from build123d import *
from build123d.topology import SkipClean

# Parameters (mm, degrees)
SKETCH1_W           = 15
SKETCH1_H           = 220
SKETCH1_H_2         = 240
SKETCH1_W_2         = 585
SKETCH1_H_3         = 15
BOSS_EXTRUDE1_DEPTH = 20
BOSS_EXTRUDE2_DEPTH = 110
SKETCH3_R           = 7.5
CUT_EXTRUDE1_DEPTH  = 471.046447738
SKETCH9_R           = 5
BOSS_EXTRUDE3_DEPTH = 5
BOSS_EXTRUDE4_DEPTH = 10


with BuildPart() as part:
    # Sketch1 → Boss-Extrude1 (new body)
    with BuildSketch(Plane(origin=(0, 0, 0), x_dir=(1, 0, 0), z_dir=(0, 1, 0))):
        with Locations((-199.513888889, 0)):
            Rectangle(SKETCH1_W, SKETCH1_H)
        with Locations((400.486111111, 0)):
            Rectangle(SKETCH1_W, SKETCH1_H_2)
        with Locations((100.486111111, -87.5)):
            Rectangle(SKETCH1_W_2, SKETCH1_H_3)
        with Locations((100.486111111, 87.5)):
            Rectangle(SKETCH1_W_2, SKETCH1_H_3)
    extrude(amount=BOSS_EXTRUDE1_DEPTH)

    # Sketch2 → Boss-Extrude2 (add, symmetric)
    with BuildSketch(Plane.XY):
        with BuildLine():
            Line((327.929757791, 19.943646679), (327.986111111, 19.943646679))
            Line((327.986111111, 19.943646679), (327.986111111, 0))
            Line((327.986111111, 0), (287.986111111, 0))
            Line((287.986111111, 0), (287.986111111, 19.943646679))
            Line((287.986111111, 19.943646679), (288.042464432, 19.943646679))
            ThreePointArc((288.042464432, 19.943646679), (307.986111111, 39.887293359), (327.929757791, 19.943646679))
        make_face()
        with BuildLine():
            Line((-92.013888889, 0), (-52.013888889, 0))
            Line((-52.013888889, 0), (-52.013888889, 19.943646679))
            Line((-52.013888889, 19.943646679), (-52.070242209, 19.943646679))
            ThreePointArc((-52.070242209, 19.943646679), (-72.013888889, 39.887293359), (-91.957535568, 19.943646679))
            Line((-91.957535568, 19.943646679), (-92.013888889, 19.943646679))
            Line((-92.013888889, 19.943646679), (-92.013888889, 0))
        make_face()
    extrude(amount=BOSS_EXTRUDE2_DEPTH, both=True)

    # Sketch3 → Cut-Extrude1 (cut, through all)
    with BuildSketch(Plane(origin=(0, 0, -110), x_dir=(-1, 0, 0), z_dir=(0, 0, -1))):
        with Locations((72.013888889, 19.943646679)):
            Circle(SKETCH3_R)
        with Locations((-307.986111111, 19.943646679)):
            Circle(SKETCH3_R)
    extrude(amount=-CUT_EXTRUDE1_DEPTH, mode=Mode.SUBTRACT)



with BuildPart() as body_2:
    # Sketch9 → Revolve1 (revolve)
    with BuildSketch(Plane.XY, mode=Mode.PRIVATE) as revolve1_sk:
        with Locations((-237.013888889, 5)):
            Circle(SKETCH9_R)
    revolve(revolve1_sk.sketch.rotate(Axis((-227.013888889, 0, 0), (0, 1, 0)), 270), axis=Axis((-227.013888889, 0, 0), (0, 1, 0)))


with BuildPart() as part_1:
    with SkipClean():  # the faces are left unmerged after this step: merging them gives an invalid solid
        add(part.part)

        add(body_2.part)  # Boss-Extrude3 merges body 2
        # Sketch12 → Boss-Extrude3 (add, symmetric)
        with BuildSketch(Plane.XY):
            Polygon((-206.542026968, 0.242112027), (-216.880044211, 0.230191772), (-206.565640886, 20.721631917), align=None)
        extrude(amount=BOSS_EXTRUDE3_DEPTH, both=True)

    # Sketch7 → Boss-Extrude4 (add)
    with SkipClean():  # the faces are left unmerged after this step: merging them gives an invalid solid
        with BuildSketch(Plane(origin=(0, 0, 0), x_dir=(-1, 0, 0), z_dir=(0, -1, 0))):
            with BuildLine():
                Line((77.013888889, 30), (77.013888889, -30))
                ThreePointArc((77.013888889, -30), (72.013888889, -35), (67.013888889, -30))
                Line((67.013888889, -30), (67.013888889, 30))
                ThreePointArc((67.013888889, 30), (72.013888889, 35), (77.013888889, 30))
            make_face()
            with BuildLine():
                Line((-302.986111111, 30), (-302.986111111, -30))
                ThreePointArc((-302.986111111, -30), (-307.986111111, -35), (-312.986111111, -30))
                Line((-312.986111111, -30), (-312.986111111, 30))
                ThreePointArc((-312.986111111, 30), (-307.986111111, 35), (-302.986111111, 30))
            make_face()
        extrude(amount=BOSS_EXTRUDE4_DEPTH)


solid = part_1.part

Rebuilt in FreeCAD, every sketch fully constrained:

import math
import FreeCAD as App
import Part
import Sketcher
from FreeCAD import Vector
Q = App.Units.Quantity


def add_polygon(sketch, points):
    """Adds a closed chain of lines whose ends are joined by coincident constraints."""
    first, n = sketch.GeometryCount, len(points)
    for a, b in zip(points, points[1:] + points[:1]):
        sketch.addGeometry(Part.LineSegment(App.Vector(*a, 0), App.Vector(*b, 0)), False)
    for i in range(n):
        sketch.addConstraint(Sketcher.Constraint("Coincident", first + i, 2, first + (i + 1) % n, 1))

doc = App.newDocument("Part")
body = doc.addObject("PartDesign::Body", "Body")

# Sketch on XZ plane
sketch1 = body.newObject("Sketcher::SketchObject", "Sketch")
sketch1.AttachmentSupport = (doc.getObject("XZ_Plane"), [""])
sketch1.MapMode = "FlatFace"
add_polygon(sketch1, [(-207, -110), (-207, 110), (-192, 110), (-192, 95), (393, 95), (393, 120), (408, 120), (408, -120), (393, -120), (393, -95), (-192, -95), (-192, -110)])  # lines 0-11
add_polygon(sketch1, [(393, -80), (393, 80), (-192, 80), (-192, -80)])  # lines 12-15
sketch1.addConstraint(Sketcher.Constraint("Vertical", 0))
sketch1.addConstraint(Sketcher.Constraint("Horizontal", 1))
sketch1.addConstraint(Sketcher.Constraint("Vertical", 2))
sketch1.addConstraint(Sketcher.Constraint("Horizontal", 3))
sketch1.addConstraint(Sketcher.Constraint("Vertical", 4))
sketch1.addConstraint(Sketcher.Constraint("Horizontal", 5))
sketch1.addConstraint(Sketcher.Constraint("Vertical", 6))
sketch1.addConstraint(Sketcher.Constraint("Horizontal", 7))
sketch1.addConstraint(Sketcher.Constraint("Vertical", 8))
sketch1.addConstraint(Sketcher.Constraint("Horizontal", 9))
sketch1.addConstraint(Sketcher.Constraint("Vertical", 10))
sketch1.addConstraint(Sketcher.Constraint("Horizontal", 11))
sketch1.addConstraint(Sketcher.Constraint("Vertical", 12))
sketch1.addConstraint(Sketcher.Constraint("Horizontal", 13))
sketch1.addConstraint(Sketcher.Constraint("Vertical", 14))
sketch1.addConstraint(Sketcher.Constraint("Horizontal", 15))
sketch1.addConstraint(Sketcher.Constraint("Symmetric", 4, 2, 7, 2, -1))
sketch1.addConstraint(Sketcher.Constraint("Symmetric", 2, 2, 9, 2, -1))
sketch1.addConstraint(Sketcher.Constraint("Vertical", 8, 2, 12, 2))
sketch1.addConstraint(Sketcher.Constraint("Vertical", 10, 2, 13, 2))
sketch1.addConstraint(Sketcher.Constraint("Equal", 1, 5))
sketch1.addConstraint(Sketcher.Constraint("Equal", 11, 2))
sketch1.addConstraint(Sketcher.Constraint("Equal", 2, 10))
sketch1.addConstraint(Sketcher.Constraint("DistanceX", 1, 1, 1, 2, Q("15 mm")))
sketch1.addConstraint(Sketcher.Constraint("DistanceX", 3, 1, 3, 2, Q("585 mm")))
sketch1.addConstraint(Sketcher.Constraint("DistanceY", 0, 1, 0, 2, Q("220 mm")))
sketch1.addConstraint(Sketcher.Constraint("DistanceY", 4, 1, 4, 2, Q("25 mm")))
sketch1.addConstraint(Sketcher.Constraint("DistanceY", 12, 1, 12, 2, Q("160 mm")))
sketch1.addConstraint(Sketcher.Constraint("DistanceY", -1, 1, 12, 2, Q("80 mm")))
sketch1.addConstraint(Sketcher.Constraint("DistanceX", 0, 2, -1, 1, Q("207.013889 mm")))
pad1 = body.newObject("PartDesign::Pad", "Pad")
pad1.Profile = sketch1
pad1.Length = 20
pad1.Reversed = True

# Sketch on XY plane
sketch2 = body.newObject("Sketcher::SketchObject", "Sketch001")
sketch2.AttachmentSupport = (doc.getObject("XY_Plane"), [""])
sketch2.MapMode = "FlatFace"
sketch2.addGeometry(Part.LineSegment(Vector(327.99, 19.94, 0), Vector(327.93, 19.94, 0)), False)
sketch2.addGeometry(Part.ArcOfCircle(Part.Circle(Vector(307.99, 19.94, 0), Vector(0, 0, 1), 19.94), math.radians(0), math.radians(180)), False)
sketch2.addGeometry(Part.LineSegment(Vector(288.04, 19.94, 0), Vector(287.99, 19.94, 0)), False)
sketch2.addGeometry(Part.LineSegment(Vector(287.99, 19.94, 0), Vector(287.99, 0, 0)), False)
sketch2.addGeometry(Part.LineSegment(Vector(287.99, 0, 0), Vector(327.99, 0, 0)), False)
sketch2.addGeometry(Part.LineSegment(Vector(327.99, 0, 0), Vector(327.99, 19.94, 0)), False)
sketch2.addGeometry(Part.LineSegment(Vector(-92.01, 0, 0), Vector(-52.01, 0, 0)), False)
sketch2.addGeometry(Part.LineSegment(Vector(-52.01, 0, 0), Vector(-52.01, 19.94, 0)), False)
sketch2.addGeometry(Part.LineSegment(Vector(-52.01, 19.94, 0), Vector(-52.07, 19.94, 0)), False)
sketch2.addGeometry(Part.ArcOfCircle(Part.Circle(Vector(-72.01, 19.94, 0), Vector(0, 0, 1), 19.94), math.radians(0), math.radians(180)), False)
sketch2.addGeometry(Part.LineSegment(Vector(-91.96, 19.94, 0), Vector(-92.01, 19.94, 0)), False)
sketch2.addGeometry(Part.LineSegment(Vector(-92.01, 19.94, 0), Vector(-92.01, 0, 0)), False)
sketch2.addConstraint(Sketcher.Constraint("Coincident", 0, 2, 1, 1))
sketch2.addConstraint(Sketcher.Constraint("Coincident", 1, 2, 2, 1))
sketch2.addConstraint(Sketcher.Constraint("Coincident", 2, 2, 3, 1))
sketch2.addConstraint(Sketcher.Constraint("Coincident", 3, 2, 4, 1))
sketch2.addConstraint(Sketcher.Constraint("Coincident", 4, 2, 5, 1))
sketch2.addConstraint(Sketcher.Constraint("Coincident", 5, 2, 0, 1))
sketch2.addConstraint(Sketcher.Constraint("Coincident", 6, 2, 7, 1))
sketch2.addConstraint(Sketcher.Constraint("Coincident", 7, 2, 8, 1))
sketch2.addConstraint(Sketcher.Constraint("Coincident", 8, 2, 9, 1))
sketch2.addConstraint(Sketcher.Constraint("Coincident", 9, 2, 10, 1))
sketch2.addConstraint(Sketcher.Constraint("Coincident", 10, 2, 11, 1))
sketch2.addConstraint(Sketcher.Constraint("Coincident", 11, 2, 6, 1))
sketch2.addConstraint(Sketcher.Constraint("Horizontal", 0))
sketch2.addConstraint(Sketcher.Constraint("Horizontal", 2))
sketch2.addConstraint(Sketcher.Constraint("Vertical", 3))
sketch2.addConstraint(Sketcher.Constraint("Horizontal", 4))
sketch2.addConstraint(Sketcher.Constraint("Vertical", 5))
sketch2.addConstraint(Sketcher.Constraint("Horizontal", 6))
sketch2.addConstraint(Sketcher.Constraint("Vertical", 7))
sketch2.addConstraint(Sketcher.Constraint("Horizontal", 8))
sketch2.addConstraint(Sketcher.Constraint("Horizontal", 10))
sketch2.addConstraint(Sketcher.Constraint("Vertical", 11))
sketch2.addConstraint(Sketcher.Constraint("Equal", 1, 9))
sketch2.addConstraint(Sketcher.Constraint("PointOnObject", 3, 2, -1))
sketch2.addConstraint(Sketcher.Constraint("PointOnObject", 6, 2, -1))
sketch2.addConstraint(Sketcher.Constraint("Horizontal", 1, 3, 9, 3))
sketch2.addConstraint(Sketcher.Constraint("Horizontal", 9, 3, 0, 2))
sketch2.addConstraint(Sketcher.Constraint("Horizontal", 0, 2, 1, 2))
sketch2.addConstraint(Sketcher.Constraint("Horizontal", 5, 2, 7, 2))
sketch2.addConstraint(Sketcher.Constraint("Horizontal", 8, 2, 9, 2))
sketch2.addConstraint(Sketcher.Constraint("Equal", 0, 2))
sketch2.addConstraint(Sketcher.Constraint("Equal", 4, 6))
sketch2.addConstraint(Sketcher.Constraint("Equal", 2, 8))
sketch2.addConstraint(Sketcher.Constraint("DistanceX", 4, 1, 4, 2, Q("40 mm")))
sketch2.addConstraint(Sketcher.Constraint("DistanceX", 9, 3, 1, 3, Q("380 mm")))
sketch2.addConstraint(Sketcher.Constraint("Radius", 1, Q("19.943647 mm")))
sketch2.addConstraint(Sketcher.Constraint("DistanceY", 3, 2, 3, 1, Q("19.943647 mm")))
sketch2.addConstraint(Sketcher.Constraint("DistanceX", -1, 1, 1, 3, Q("307.986111 mm")))
pad2 = body.newObject("PartDesign::Pad", "Pad001")
pad2.Profile = sketch2
pad2.Length = 220
pad2.Midplane = True

# Sketch on XY plane
sketch3 = body.newObject("Sketcher::SketchObject", "Sketch002")
sketch3.AttachmentSupport = (doc.getObject("XY_Plane"), [""])
sketch3.MapMode = "FlatFace"
sketch3.AttachmentOffset = App.Placement(Vector(0, 0, -110), App.Rotation())
sketch3.addGeometry(Part.Circle(Vector(-72, 20, 0), Vector(0, 0, 1), 8), False)
sketch3.addGeometry(Part.Circle(Vector(308, 20, 0), Vector(0, 0, 1), 8), False)
sketch3.addConstraint(Sketcher.Constraint("Equal", 0, 1))
sketch3.addConstraint(Sketcher.Constraint("Horizontal", 0, 3, 1, 3))
sketch3.addConstraint(Sketcher.Constraint("Diameter", 0, Q("15 mm")))
sketch3.addConstraint(Sketcher.Constraint("DistanceX", 0, 3, 1, 3, Q("380 mm")))
sketch3.addConstraint(Sketcher.Constraint("DistanceX", 0, 3, -1, 1, Q("72.013889 mm")))
sketch3.addConstraint(Sketcher.Constraint("DistanceY", -1, 1, 0, 3, Q("19.943647 mm")))
pocket1 = body.newObject("PartDesign::Pocket", "Pocket")
pocket1.Profile = sketch3
pocket1.Type = "ThroughAll"
pocket1.Reversed = True
body2 = doc.addObject("PartDesign::Body", "Body001")

# Sketch on XY plane
sketch4 = body2.newObject("Sketcher::SketchObject", "Sketch003")
sketch4.AttachmentSupport = (doc.getObject("XY_Plane001"), [""])
sketch4.MapMode = "FlatFace"
sketch4.addGeometry(Part.Circle(Vector(-237, 5, 0), Vector(0, 0, 1), 5), False)
sketch4.addGeometry(Part.LineSegment(Vector(-227, 5, 0), Vector(-227, 15, 0)), True)  # axis
sketch4.addConstraint(Sketcher.Constraint("Vertical", 1))
sketch4.addConstraint(Sketcher.Constraint("Horizontal", 0, 3, 1, 1))
sketch4.addConstraint(Sketcher.Constraint("Diameter", 0, Q("10 mm")))
sketch4.addConstraint(Sketcher.Constraint("DistanceY", 1, 1, 1, 2, Q("10 mm")))
sketch4.addConstraint(Sketcher.Constraint("DistanceY", -1, 1, 0, 3, Q("5 mm")))
sketch4.addConstraint(Sketcher.Constraint("DistanceX", 0, 3, 1, 1, Q("10 mm")))
sketch4.addConstraint(Sketcher.Constraint("DistanceX", 0, 3, -1, 1, Q("237.013889 mm")))
revolution = body2.newObject("PartDesign::Revolution", "Revolution")
revolution.Profile = sketch4
revolution.ReferenceAxis = (sketch4, ["Axis0"])
revolution.Angle = 360
body.AllowCompound = True
doc.recompute()

boolean = body.newObject("PartDesign::Boolean", "Boolean")
boolean.Type = "Fuse"
boolean.addObjects([body2])

# Sketch on XY plane
sketch5 = body.newObject("Sketcher::SketchObject", "Sketch004")
sketch5.AttachmentSupport = (doc.getObject("XY_Plane"), [""])
sketch5.MapMode = "FlatFace"
add_polygon(sketch5, [(-217, 0), (-207, 0), (-207, 21)])  # lines 0-2
sketch5.addConstraint(Sketcher.Constraint("Perpendicular", 0, 1))
sketch5.addConstraint(Sketcher.Constraint("DistanceX", 1, 2, -1, 1, Q("206.565641 mm")))
sketch5.addConstraint(Sketcher.Constraint("DistanceY", -1, 1, 1, 2, Q("20.721632 mm")))
sketch5.addConstraint(Sketcher.Constraint("DistanceY", -1, 1, 2, 2, Q("0.230192 mm")))
sketch5.addConstraint(Sketcher.Constraint("DistanceY", 0, 2, 1, 2, Q("20.47952 mm")))
sketch5.addConstraint(Sketcher.Constraint("Distance", 0, Q("10.338024 mm")))
pad3 = body.newObject("PartDesign::Pad", "Pad002")
pad3.Profile = sketch5
pad3.Length = 10
pad3.Midplane = True

# Sketch on XZ plane
sketch6 = body.newObject("Sketcher::SketchObject", "Sketch005")
sketch6.AttachmentSupport = (doc.getObject("XZ_Plane"), [""])
sketch6.MapMode = "FlatFace"
sketch6.addGeometry(Part.LineSegment(Vector(-77, 30, 0), Vector(-77, -30, 0)), False)
sketch6.addGeometry(Part.ArcOfCircle(Part.Circle(Vector(-72, -30, 0), Vector(0, 0, 1), 5), math.radians(180), math.radians(360)), False)
sketch6.addGeometry(Part.LineSegment(Vector(-67, -30, 0), Vector(-67, 30, 0)), False)
sketch6.addGeometry(Part.ArcOfCircle(Part.Circle(Vector(-72, 30, 0), Vector(0, 0, 1), 5), math.radians(0), math.radians(180)), False)
sketch6.addGeometry(Part.LineSegment(Vector(303, 30, 0), Vector(303, -30, 0)), False)
sketch6.addGeometry(Part.ArcOfCircle(Part.Circle(Vector(308, -30, 0), Vector(0, 0, 1), 5), math.radians(180), math.radians(360)), False)
sketch6.addGeometry(Part.LineSegment(Vector(313, -30, 0), Vector(313, 30, 0)), False)
sketch6.addGeometry(Part.ArcOfCircle(Part.Circle(Vector(308, 30, 0), Vector(0, 0, 1), 5), math.radians(0), math.radians(180)), False)
sketch6.addConstraint(Sketcher.Constraint("Tangent", 0, 2, 1, 1))
sketch6.addConstraint(Sketcher.Constraint("Tangent", 1, 2, 2, 1))
sketch6.addConstraint(Sketcher.Constraint("Tangent", 2, 2, 3, 1))
sketch6.addConstraint(Sketcher.Constraint("Tangent", 3, 2, 0, 1))
sketch6.addConstraint(Sketcher.Constraint("Tangent", 4, 2, 5, 1))
sketch6.addConstraint(Sketcher.Constraint("Tangent", 5, 2, 6, 1))
sketch6.addConstraint(Sketcher.Constraint("Tangent", 6, 2, 7, 1))
sketch6.addConstraint(Sketcher.Constraint("Tangent", 7, 2, 4, 1))
sketch6.addConstraint(Sketcher.Constraint("Vertical", 0))
sketch6.addConstraint(Sketcher.Constraint("Vertical", 2))
sketch6.addConstraint(Sketcher.Constraint("Vertical", 4))
sketch6.addConstraint(Sketcher.Constraint("Vertical", 6))
sketch6.addConstraint(Sketcher.Constraint("Equal", 3, 5))
sketch6.addConstraint(Sketcher.Constraint("Horizontal", 1, 3, 5, 3))
sketch6.addConstraint(Sketcher.Constraint("Horizontal", 3, 3, 7, 3))
sketch6.addConstraint(Sketcher.Constraint("Radius", 1, Q("5 mm")))
sketch6.addConstraint(Sketcher.Constraint("DistanceY", 0, 2, 0, 1, Q("60 mm")))
sketch6.addConstraint(Sketcher.Constraint("DistanceY", 1, 3, -1, 1, Q("30 mm")))
sketch6.addConstraint(Sketcher.Constraint("DistanceX", 1, 3, 5, 3, Q("380 mm")))
sketch6.addConstraint(Sketcher.Constraint("DistanceX", 1, 3, -1, 1, Q("72.013889 mm")))
pad4 = body.newObject("PartDesign::Pad", "Pad003")
pad4.Profile = sketch6
pad4.Length = 10

doc.recompute()
